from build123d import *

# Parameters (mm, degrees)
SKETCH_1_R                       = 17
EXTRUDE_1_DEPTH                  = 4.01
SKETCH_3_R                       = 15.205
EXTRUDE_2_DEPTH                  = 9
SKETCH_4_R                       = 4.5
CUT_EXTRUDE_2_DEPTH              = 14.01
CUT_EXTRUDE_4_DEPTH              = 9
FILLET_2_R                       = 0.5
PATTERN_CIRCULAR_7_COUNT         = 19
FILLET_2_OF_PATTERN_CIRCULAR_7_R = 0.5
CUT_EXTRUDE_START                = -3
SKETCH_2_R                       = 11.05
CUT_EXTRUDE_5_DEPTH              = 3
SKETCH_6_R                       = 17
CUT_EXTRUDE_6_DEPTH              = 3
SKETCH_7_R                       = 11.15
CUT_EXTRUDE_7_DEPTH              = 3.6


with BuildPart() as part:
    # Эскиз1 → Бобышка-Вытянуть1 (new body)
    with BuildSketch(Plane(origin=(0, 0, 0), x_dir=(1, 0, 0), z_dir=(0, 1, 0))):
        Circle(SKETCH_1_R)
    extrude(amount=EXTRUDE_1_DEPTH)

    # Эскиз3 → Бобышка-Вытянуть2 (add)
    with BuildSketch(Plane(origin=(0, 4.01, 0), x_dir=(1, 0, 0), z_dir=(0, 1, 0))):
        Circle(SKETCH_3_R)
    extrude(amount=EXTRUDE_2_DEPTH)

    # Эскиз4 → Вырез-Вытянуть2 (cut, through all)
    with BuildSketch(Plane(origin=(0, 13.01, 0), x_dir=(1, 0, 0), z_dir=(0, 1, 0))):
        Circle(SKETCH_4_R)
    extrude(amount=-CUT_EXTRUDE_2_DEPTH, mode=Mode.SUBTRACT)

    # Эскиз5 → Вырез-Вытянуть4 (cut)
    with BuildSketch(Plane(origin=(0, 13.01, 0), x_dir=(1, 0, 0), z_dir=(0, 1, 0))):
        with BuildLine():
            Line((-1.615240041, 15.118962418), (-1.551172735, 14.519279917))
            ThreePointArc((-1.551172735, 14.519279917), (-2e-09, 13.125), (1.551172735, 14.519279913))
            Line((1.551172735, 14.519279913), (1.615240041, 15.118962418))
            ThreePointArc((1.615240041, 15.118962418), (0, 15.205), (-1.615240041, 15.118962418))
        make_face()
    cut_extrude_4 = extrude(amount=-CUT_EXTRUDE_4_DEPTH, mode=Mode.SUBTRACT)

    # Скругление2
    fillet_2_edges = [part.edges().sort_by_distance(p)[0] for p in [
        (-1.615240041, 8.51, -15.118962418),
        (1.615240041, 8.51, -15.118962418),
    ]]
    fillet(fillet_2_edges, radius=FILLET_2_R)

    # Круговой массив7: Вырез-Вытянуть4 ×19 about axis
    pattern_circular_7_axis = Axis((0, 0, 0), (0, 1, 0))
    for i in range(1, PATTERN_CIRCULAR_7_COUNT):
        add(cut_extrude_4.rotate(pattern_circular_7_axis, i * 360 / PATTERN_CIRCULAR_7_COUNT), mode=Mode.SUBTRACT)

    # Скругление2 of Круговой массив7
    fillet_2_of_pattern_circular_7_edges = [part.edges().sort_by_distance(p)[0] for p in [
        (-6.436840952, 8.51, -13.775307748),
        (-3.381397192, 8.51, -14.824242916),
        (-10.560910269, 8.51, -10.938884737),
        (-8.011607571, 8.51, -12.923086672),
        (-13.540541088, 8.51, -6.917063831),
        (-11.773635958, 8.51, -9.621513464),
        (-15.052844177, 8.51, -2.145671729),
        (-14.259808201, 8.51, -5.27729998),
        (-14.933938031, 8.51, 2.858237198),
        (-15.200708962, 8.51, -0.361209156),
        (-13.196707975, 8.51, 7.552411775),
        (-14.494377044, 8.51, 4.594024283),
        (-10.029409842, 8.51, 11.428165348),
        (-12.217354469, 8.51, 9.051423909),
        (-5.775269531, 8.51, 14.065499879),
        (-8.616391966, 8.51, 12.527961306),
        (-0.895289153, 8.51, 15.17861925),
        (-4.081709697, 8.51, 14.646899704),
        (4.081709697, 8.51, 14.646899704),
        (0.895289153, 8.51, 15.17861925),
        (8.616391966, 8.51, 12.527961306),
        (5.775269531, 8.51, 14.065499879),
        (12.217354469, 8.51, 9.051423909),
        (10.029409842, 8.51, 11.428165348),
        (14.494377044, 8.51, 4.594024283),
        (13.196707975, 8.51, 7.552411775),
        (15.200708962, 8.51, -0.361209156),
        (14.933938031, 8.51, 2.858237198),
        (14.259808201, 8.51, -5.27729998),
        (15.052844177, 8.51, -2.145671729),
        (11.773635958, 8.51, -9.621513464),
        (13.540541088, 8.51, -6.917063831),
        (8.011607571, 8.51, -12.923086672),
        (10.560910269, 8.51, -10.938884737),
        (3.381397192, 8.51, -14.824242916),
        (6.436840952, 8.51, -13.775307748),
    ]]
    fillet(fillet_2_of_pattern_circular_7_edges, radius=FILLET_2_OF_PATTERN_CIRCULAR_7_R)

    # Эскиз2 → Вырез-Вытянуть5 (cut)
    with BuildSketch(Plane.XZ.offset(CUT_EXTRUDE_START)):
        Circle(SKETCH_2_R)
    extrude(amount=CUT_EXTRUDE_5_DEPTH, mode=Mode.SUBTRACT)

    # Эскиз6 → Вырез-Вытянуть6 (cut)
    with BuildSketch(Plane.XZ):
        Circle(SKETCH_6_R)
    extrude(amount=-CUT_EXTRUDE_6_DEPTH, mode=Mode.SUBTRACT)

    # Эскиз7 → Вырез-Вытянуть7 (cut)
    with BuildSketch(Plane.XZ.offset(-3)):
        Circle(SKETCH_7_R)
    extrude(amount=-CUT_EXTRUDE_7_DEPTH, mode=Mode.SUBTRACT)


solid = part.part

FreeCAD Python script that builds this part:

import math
import FreeCAD as App
import Part
import Sketcher
from FreeCAD import Vector
Q = App.Units.Quantity


def edges_at(feature, points):
    """Names of the edges that pass closest to the given points."""
    edges = feature.Shape.Edges
    near = lambda p: min(range(len(edges)), key=lambda i: edges[i].distToShape(Part.Vertex(*p))[0])
    return sorted({f"Edge{near(p) + 1}" for p in points})

doc = App.newDocument("Part")
body = doc.addObject("PartDesign::Body", "Body")

sketch1 = body.newObject("Sketcher::SketchObject", "Sketch")
sketch1.AttachmentSupport = (doc.getObject("XZ_Plane"), [""])
sketch1.MapMode = "FlatFace"
sketch1.addGeometry(Part.Circle(Vector(0, 0, 0), Vector(0, 0, 1), 17), False)
sketch1.addConstraint([
    Sketcher.Constraint("Coincident", 0, 3, -1, 1),
    Sketcher.Constraint("Diameter", 0, Q("34 mm")),
])
pad1 = body.newObject("PartDesign::Pad", "Pad")
pad1.Profile = sketch1
pad1.Length = 4.01
pad1.Reversed = True

sketch2 = body.newObject("Sketcher::SketchObject", "Sketch001")
sketch2.AttachmentSupport = (doc.getObject("XZ_Plane"), [""])
sketch2.MapMode = "FlatFace"
sketch2.AttachmentOffset = App.Placement(Vector(0, 0, -4.01), App.Rotation())
sketch2.addGeometry(Part.Circle(Vector(0, 0, 0), Vector(0, 0, 1), 15.205), False)
sketch2.addConstraint([
    Sketcher.Constraint("Coincident", 0, 3, -1, 1),
    Sketcher.Constraint("Diameter", 0, Q("30.41 mm")),
])
pad2 = body.newObject("PartDesign::Pad", "Pad001")
pad2.Profile = sketch2
pad2.Length = 9
pad2.Reversed = True

sketch3 = body.newObject("Sketcher::SketchObject", "Sketch002")
sketch3.AttachmentSupport = (doc.getObject("XZ_Plane"), [""])
sketch3.MapMode = "FlatFace"
sketch3.AttachmentOffset = App.Placement(Vector(0, 0, -13.01), App.Rotation())
sketch3.addGeometry(Part.Circle(Vector(0, 0, 0), Vector(0, 0, 1), 4.5), False)
sketch3.addConstraint([
    Sketcher.Constraint("Coincident", 0, 3, -1, 1),
    Sketcher.Constraint("Diameter", 0, Q("9 mm")),
])
pocket1 = body.newObject("PartDesign::Pocket", "Pocket")
pocket1.Profile = sketch3
pocket1.Type = "ThroughAll"
pocket1.Reversed = True

sketch4 = body.newObject("Sketcher::SketchObject", "Sketch003")
sketch4.AttachmentSupport = (doc.getObject("XZ_Plane"), [""])
sketch4.MapMode = "FlatFace"
sketch4.AttachmentOffset = App.Placement(Vector(0, 0, -13.01), App.Rotation())
sketch4.addGeometry([
    Part.LineSegment(Vector(-1.61524, -15.118962, 0), Vector(-1.551173, -14.51928, 0)),
    Part.ArcOfCircle(Part.Circle(Vector(0, -14.685, 0), Vector(0, 0, 1), 1.56), math.radians(6.098084), math.radians(173.901916)),
    Part.LineSegment(Vector(1.551173, -14.51928, 0), Vector(1.61524, -15.118962, 0)),
    Part.ArcOfCircle(Part.Circle(Vector(0, 0, 0), Vector(0, 0, 1), 15.205), math.radians(-96.098086), math.radians(-83.901914)),
], False)
sketch4.addConstraint([
    Sketcher.Constraint("Tangent", 0, 2, 1, 2),
    Sketcher.Constraint("Tangent", 1, 1, 2, 1),
    Sketcher.Constraint("Coincident", 2, 2, 3, 2),
    Sketcher.Constraint("Coincident", 3, 1, 0, 1),
    Sketcher.Constraint("Coincident", 3, 3, -1, 1),
    Sketcher.Constraint("Symmetric", 0, 2, 1, 1, -2),
    Sketcher.Constraint("Radius", 1, Q("1.56 mm")),
    Sketcher.Constraint("Radius", 3, Q("15.205 mm")),
    Sketcher.Constraint("DistanceY", 1, 3, -1, 1, Q("14.685 mm")),
    Sketcher.Constraint("DistanceY", 0, 2, -1, 1, Q("14.51928 mm")),
])
pocket2 = body.newObject("PartDesign::Pocket", "Pocket001")
pocket2.Profile = sketch4
pocket2.Length = 9
pocket2.Reversed = True
doc.recompute()

fillet = body.newObject("PartDesign::Fillet", "Fillet")
fillet.Base = (pocket2, edges_at(pocket2, [(-1.615, 8.51, -15.119), (1.615, 8.51, -15.119)]))
fillet.Radius = 0.5
doc.recompute()

polarpattern = body.newObject("PartDesign::PolarPattern", "PolarPattern")
polarpattern.Originals = [pocket2]
polarpattern.Axis = (doc.getObject("Y_Axis"), [""])
polarpattern.Angle = 360
polarpattern.Occurrences = 19
body.Tip = polarpattern
doc.recompute()

fillet2 = body.newObject("PartDesign::Fillet", "Fillet001")
fillet2.Base = (polarpattern, edges_at(polarpattern, [
    (-6.437, 8.51, -13.775),
    (-3.381, 8.51, -14.824),
    (-10.561, 8.51, -10.939),
    (-8.012, 8.51, -12.923),
    (-13.541, 8.51, -6.917),
    (-11.774, 8.51, -9.622),
    (-15.053, 8.51, -2.146),
    (-14.26, 8.51, -5.277),
    (-14.934, 8.51, 2.858),
    (-15.201, 8.51, -0.361),
    (-13.197, 8.51, 7.552),
    (-14.494, 8.51, 4.594),
    (-10.029, 8.51, 11.428),
    (-12.217, 8.51, 9.051),
    (-5.775, 8.51, 14.065),
    (-8.616, 8.51, 12.528),
    (-0.895, 8.51, 15.179),
    (-4.082, 8.51, 14.647),
    (4.082, 8.51, 14.647),
    (0.895, 8.51, 15.179),
    (8.616, 8.51, 12.528),
    (5.775, 8.51, 14.065),
    (12.217, 8.51, 9.051),
    (10.029, 8.51, 11.428),
    (14.494, 8.51, 4.594),
    (13.197, 8.51, 7.552),
    (15.201, 8.51, -0.361),
    (14.934, 8.51, 2.858),
    (14.26, 8.51, -5.277),
    (15.053, 8.51, -2.146),
    (11.774, 8.51, -9.622),
    (13.541, 8.51, -6.917),
    (8.012, 8.51, -12.923),
    (10.561, 8.51, -10.939),
    (3.381, 8.51, -14.824),
    (6.437, 8.51, -13.775),
]))
fillet2.Radius = 0.5

sketch5 = body.newObject("Sketcher::SketchObject", "Sketch004")
sketch5.AttachmentSupport = (doc.getObject("XZ_Plane"), [""])
sketch5.MapMode = "FlatFace"
sketch5.AttachmentOffset = App.Placement(Vector(0, 0, -3), App.Rotation())
sketch5.addGeometry(Part.Circle(Vector(0, 0, 0), Vector(0, 0, 1), 11.05), False)
sketch5.addConstraint([
    Sketcher.Constraint("Coincident", 0, 3, -1, 1),
    Sketcher.Constraint("Diameter", 0, Q("22.1 mm")),
])
pocket3 = body.newObject("PartDesign::Pocket", "Pocket002")
pocket3.Profile = sketch5
pocket3.Length = 3
pocket3.Reversed = True

sketch6 = body.newObject("Sketcher::SketchObject", "Sketch005")
sketch6.AttachmentSupport = (doc.getObject("XZ_Plane"), [""])
sketch6.MapMode = "FlatFace"
sketch6.addGeometry(Part.Circle(Vector(0, 0, 0), Vector(0, 0, 1), 17), False)
sketch6.addConstraint([
    Sketcher.Constraint("Coincident", 0, 3, -1, 1),
    Sketcher.Constraint("Diameter", 0, Q("34 mm")),
])
pocket4 = body.newObject("PartDesign::Pocket", "Pocket003")
pocket4.Profile = sketch6
pocket4.Length = 3

sketch7 = body.newObject("Sketcher::SketchObject", "Sketch006")
sketch7.AttachmentSupport = (doc.getObject("XZ_Plane"), [""])
sketch7.MapMode = "FlatFace"
sketch7.AttachmentOffset = App.Placement(Vector(0, 0, -3), App.Rotation())
sketch7.addGeometry(Part.Circle(Vector(0, 0, 0), Vector(0, 0, 1), 11.15), False)
sketch7.addConstraint([
    Sketcher.Constraint("Coincident", 0, 3, -1, 1),
    Sketcher.Constraint("Diameter", 0, Q("22.3 mm")),
])
pocket5 = body.newObject("PartDesign::Pocket", "Pocket004")
pocket5.Profile = sketch7
pocket5.Length = 3.6

doc.recompute()
